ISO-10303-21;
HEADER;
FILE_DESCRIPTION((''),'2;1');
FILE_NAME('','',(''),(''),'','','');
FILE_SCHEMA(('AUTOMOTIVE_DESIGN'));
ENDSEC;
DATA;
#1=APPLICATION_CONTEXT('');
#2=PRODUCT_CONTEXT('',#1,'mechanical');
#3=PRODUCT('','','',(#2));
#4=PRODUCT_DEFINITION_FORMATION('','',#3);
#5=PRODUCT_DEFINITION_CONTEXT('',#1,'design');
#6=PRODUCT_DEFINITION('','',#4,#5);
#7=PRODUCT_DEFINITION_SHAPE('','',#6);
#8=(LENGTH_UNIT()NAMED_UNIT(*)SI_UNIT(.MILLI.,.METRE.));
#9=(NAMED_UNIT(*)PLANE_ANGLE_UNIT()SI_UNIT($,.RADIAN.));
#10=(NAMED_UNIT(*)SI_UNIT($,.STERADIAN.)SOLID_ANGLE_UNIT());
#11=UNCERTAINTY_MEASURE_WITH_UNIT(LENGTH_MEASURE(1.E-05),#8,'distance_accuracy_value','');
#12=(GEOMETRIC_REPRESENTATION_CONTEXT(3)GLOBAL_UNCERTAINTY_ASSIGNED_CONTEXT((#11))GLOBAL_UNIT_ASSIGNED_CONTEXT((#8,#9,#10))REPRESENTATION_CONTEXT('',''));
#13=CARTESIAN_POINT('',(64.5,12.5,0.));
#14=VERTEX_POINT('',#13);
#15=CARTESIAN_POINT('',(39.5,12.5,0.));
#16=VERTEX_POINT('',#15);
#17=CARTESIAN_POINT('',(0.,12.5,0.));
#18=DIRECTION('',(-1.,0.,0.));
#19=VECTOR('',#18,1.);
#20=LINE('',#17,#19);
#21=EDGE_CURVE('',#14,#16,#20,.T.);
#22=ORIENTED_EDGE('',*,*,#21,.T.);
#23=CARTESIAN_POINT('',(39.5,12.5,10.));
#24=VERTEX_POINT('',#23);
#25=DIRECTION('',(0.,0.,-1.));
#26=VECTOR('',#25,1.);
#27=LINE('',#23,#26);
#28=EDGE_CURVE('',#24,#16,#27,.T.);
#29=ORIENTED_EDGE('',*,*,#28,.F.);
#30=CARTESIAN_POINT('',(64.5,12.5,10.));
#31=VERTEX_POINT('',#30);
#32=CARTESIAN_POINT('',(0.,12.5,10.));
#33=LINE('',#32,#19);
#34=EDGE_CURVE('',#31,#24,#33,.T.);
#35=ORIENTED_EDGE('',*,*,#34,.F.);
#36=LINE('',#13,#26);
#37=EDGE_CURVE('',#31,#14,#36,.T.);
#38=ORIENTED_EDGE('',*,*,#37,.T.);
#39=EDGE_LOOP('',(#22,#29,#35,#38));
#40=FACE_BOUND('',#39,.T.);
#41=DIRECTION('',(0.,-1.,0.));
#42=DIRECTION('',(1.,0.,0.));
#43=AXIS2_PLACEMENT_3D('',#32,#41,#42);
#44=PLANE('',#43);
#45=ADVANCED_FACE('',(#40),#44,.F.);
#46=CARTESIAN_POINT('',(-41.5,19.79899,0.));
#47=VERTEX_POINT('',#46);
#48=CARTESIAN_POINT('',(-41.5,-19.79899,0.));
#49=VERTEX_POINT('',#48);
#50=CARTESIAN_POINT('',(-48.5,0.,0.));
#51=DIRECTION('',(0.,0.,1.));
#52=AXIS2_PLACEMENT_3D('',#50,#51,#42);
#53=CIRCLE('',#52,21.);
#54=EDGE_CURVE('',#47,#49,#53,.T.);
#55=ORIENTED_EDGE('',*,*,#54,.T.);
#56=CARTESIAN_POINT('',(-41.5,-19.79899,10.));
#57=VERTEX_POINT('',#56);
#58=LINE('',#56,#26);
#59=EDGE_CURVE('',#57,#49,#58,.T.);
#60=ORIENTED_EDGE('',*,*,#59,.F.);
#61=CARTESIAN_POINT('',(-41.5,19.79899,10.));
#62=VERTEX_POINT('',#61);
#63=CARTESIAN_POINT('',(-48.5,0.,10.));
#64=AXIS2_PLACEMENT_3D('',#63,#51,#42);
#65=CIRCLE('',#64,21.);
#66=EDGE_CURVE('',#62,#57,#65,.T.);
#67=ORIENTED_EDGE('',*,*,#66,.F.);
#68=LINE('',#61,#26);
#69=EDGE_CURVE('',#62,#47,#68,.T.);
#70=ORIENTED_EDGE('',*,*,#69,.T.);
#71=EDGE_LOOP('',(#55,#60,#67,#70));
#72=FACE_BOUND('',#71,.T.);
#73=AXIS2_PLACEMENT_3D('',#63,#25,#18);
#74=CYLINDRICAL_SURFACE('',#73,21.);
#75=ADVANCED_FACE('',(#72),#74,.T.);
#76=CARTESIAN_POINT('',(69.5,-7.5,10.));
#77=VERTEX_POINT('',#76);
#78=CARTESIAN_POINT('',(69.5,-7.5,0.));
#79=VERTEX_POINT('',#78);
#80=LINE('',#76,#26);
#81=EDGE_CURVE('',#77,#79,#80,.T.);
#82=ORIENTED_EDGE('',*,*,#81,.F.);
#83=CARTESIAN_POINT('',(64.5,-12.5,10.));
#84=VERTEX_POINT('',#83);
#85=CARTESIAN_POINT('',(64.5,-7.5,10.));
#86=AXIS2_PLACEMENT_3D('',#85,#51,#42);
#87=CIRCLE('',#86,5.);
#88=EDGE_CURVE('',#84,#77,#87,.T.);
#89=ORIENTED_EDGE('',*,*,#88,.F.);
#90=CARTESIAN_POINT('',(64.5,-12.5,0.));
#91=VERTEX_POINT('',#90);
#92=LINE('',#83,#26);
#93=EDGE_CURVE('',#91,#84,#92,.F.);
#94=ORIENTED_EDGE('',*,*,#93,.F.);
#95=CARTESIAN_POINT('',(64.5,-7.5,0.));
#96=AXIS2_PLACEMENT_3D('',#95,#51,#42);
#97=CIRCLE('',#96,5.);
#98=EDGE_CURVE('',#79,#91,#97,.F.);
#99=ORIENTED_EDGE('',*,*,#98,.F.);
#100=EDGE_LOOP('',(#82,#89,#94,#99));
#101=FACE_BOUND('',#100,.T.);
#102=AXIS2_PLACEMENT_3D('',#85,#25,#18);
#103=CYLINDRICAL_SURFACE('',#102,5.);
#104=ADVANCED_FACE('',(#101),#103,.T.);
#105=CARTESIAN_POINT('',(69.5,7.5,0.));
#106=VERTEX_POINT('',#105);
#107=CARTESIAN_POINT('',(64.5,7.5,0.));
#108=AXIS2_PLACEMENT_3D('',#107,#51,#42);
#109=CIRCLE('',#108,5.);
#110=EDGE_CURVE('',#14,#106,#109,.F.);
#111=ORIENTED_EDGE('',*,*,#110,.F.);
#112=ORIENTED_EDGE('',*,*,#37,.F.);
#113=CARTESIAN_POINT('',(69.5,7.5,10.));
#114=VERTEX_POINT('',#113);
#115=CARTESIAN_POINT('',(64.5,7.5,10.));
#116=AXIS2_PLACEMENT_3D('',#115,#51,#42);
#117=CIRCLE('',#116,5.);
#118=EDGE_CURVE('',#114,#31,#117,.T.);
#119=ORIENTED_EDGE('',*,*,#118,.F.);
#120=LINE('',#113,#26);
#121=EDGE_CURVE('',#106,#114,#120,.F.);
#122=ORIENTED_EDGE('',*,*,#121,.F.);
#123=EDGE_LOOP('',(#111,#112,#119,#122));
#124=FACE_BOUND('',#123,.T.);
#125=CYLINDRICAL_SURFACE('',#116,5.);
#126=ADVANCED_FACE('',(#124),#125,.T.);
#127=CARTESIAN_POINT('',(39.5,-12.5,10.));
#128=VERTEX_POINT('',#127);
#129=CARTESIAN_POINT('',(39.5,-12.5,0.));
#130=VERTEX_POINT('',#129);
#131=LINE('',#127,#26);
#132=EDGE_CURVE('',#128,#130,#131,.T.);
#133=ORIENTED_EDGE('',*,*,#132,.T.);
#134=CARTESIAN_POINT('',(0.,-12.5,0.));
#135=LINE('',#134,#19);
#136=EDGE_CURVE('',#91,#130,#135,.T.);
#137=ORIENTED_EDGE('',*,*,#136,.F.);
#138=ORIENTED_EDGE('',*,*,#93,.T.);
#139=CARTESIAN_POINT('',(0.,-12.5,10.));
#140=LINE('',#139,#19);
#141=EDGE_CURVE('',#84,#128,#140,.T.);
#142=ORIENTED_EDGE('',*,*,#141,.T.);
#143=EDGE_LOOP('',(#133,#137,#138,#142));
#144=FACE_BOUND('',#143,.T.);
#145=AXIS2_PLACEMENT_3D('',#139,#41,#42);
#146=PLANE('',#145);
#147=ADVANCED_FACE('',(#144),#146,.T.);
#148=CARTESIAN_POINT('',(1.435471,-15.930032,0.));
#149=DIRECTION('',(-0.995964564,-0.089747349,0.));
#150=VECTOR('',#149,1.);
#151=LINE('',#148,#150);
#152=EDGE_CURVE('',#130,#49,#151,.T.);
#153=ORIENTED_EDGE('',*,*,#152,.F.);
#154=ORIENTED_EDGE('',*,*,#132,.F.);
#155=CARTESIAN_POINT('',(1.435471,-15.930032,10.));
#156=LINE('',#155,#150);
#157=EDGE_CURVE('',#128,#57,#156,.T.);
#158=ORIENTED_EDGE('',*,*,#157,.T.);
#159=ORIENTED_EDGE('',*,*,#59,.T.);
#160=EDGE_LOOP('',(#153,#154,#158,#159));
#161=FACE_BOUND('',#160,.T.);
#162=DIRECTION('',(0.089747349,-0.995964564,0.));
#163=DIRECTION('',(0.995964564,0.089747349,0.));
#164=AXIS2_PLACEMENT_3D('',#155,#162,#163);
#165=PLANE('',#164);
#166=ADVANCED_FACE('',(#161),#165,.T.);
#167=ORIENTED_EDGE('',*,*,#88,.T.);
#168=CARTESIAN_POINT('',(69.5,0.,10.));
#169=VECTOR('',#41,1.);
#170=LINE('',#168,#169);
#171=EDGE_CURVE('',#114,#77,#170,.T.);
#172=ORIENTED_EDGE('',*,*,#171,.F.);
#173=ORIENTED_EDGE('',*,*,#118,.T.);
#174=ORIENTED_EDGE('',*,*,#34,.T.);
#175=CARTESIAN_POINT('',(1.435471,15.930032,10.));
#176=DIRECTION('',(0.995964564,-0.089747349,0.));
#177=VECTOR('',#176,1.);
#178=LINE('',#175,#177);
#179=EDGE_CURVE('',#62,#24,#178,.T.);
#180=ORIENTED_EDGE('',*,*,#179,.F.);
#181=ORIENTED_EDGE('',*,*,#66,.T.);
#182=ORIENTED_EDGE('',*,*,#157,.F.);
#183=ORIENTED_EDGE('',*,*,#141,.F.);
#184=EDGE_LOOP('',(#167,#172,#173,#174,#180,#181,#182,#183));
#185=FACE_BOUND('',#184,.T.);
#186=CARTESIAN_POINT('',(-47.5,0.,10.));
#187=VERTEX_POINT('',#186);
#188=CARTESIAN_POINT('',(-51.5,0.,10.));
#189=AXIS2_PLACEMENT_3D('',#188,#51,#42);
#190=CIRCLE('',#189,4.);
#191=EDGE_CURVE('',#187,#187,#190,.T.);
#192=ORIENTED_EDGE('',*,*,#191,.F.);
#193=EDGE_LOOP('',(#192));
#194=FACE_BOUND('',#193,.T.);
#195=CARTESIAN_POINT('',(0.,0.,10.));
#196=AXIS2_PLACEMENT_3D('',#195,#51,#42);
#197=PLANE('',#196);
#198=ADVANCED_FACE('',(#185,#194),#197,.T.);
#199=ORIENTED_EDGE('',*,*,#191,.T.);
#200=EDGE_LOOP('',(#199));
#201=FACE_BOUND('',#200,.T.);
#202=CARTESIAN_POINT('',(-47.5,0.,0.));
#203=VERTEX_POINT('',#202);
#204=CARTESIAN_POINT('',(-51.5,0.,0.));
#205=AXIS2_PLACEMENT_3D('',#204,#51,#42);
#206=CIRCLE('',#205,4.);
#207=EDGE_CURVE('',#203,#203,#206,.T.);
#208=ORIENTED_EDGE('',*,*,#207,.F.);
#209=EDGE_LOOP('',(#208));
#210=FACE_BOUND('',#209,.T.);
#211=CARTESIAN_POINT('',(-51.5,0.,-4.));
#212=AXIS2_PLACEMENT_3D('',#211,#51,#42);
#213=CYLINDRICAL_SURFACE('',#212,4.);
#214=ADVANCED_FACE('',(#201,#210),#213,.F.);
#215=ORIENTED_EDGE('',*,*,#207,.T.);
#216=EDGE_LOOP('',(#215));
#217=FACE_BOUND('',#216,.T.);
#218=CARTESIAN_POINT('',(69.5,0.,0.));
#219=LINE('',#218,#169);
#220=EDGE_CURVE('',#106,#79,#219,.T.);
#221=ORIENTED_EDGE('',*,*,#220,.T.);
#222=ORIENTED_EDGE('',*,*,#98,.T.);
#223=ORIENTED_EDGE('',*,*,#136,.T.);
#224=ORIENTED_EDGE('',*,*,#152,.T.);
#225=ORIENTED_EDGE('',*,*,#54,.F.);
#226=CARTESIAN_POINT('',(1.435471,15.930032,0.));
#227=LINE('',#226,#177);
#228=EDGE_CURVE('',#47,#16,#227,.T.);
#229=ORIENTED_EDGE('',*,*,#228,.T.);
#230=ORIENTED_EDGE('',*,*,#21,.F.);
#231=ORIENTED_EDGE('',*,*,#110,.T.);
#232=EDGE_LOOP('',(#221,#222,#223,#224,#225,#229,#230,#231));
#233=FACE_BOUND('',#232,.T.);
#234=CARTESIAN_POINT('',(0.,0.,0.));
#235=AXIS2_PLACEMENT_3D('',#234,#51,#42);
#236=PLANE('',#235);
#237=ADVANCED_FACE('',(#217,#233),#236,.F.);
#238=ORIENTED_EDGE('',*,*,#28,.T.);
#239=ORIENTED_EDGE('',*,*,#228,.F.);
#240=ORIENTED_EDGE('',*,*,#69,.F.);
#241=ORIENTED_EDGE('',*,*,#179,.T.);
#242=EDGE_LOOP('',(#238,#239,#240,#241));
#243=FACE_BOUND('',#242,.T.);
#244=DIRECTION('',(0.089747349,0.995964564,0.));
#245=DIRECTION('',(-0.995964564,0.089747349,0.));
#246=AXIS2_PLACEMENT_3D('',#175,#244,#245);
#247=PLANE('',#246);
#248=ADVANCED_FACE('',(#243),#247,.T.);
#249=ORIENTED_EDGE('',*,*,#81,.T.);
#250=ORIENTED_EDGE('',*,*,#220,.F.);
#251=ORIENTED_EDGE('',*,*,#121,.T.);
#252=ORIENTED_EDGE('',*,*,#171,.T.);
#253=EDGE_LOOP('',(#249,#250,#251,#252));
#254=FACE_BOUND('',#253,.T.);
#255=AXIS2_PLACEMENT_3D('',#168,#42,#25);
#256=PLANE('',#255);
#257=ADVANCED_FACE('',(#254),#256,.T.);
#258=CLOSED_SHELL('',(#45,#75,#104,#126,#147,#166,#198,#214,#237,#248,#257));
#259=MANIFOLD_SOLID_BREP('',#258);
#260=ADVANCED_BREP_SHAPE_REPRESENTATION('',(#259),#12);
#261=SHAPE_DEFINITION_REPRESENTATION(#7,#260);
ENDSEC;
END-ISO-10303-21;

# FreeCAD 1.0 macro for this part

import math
import FreeCAD as App
import Part
import Sketcher


def edges_at(feature, points):
    """Names of the edges that pass closest to the given points."""
    edges = feature.Shape.Edges
    near = lambda p: min(range(len(edges)), key=lambda i: edges[i].distToShape(Part.Vertex(*p))[0])
    return sorted({f"Edge{near(p) + 1}" for p in points})

doc = App.newDocument("Part")
body = doc.addObject("PartDesign::Body", "Body")

# Sketch on XY plane
sketch1 = doc.addObject("Sketcher::SketchObject", "Sketch")
body.addObject(sketch1)
sketch1.AttachmentSupport = (doc.XY_Plane, [""])
sketch1.MapMode = "FlatFace"
sketch1.addGeometry(Part.ArcOfCircle(Part.Circle(App.Vector(-48, 0, 0), App.Vector(0, 0, 1), 21), math.radians(70.53), math.radians(90)), False)
sketch1.addGeometry(Part.ArcOfCircle(Part.Circle(App.Vector(-48, 0, 0), App.Vector(0, 0, 1), 21), math.radians(90), math.radians(180)), False)
sketch1.addGeometry(Part.ArcOfCircle(Part.Circle(App.Vector(-48, 0, 0), App.Vector(0, 0, 1), 21), math.radians(180), math.radians(270)), False)
sketch1.addGeometry(Part.ArcOfCircle(Part.Circle(App.Vector(-48, 0, 0), App.Vector(0, 0, 1), 21), math.radians(-90), math.radians(-70.53)), False)
sketch1.addGeometry(Part.LineSegment(App.Vector(-42, -20, 0), App.Vector(40, -12, 0)), False)
sketch1.addGeometry(Part.LineSegment(App.Vector(40, -12, 0), App.Vector(70, -12, 0)), False)
sketch1.addGeometry(Part.LineSegment(App.Vector(70, -12, 0), App.Vector(70, 12, 0)), False)
sketch1.addGeometry(Part.LineSegment(App.Vector(70, 12, 0), App.Vector(40, 12, 0)), False)
sketch1.addGeometry(Part.LineSegment(App.Vector(40, 12, 0), App.Vector(-42, 20, 0)), False)
sketch1.addConstraint(Sketcher.Constraint("Tangent", 0, 2, 1, 1))
sketch1.addConstraint(Sketcher.Constraint("Tangent", 1, 2, 2, 1))
sketch1.addConstraint(Sketcher.Constraint("Tangent", 2, 2, 3, 1))
sketch1.addConstraint(Sketcher.Constraint("Coincident", 3, 2, 4, 1))
sketch1.addConstraint(Sketcher.Constraint("Coincident", 4, 2, 5, 1))
sketch1.addConstraint(Sketcher.Constraint("Coincident", 5, 2, 6, 1))
sketch1.addConstraint(Sketcher.Constraint("Coincident", 6, 2, 7, 1))
sketch1.addConstraint(Sketcher.Constraint("Coincident", 7, 2, 8, 1))
sketch1.addConstraint(Sketcher.Constraint("Coincident", 8, 2, 0, 1))
sketch1.addConstraint(Sketcher.Constraint("Horizontal", 5))
sketch1.addConstraint(Sketcher.Constraint("Vertical", 6))
sketch1.addConstraint(Sketcher.Constraint("Horizontal", 7))
sketch1.addConstraint(Sketcher.Constraint("Coincident", 2, 3, 0, 3))
sketch1.addConstraint(Sketcher.Constraint("Equal", 2, 3))
sketch1.addConstraint(Sketcher.Constraint("Symmetric", 0, 2, 2, 2, -1))
sketch1.addConstraint(Sketcher.Constraint("Symmetric", 4, 2, 7, 2, -1))
sketch1.addConstraint(Sketcher.Constraint("PointOnObject", 1, 2, -1))
sketch1.addConstraint(Sketcher.Constraint("Vertical", 3, 3, 0, 2))
sketch1.addConstraint(Sketcher.Constraint("Vertical", 3, 2, 8, 2))
sketch1.addConstraint(Sketcher.Constraint("Radius", 0, 21.0))
sketch1.addConstraint(Sketcher.Constraint("DistanceX", 5, 1, 5, 2, 30.0))
sketch1.addConstraint(Sketcher.Constraint("DistanceY", 6, 1, 6, 2, 25.0))
sketch1.addConstraint(Sketcher.Constraint("DistanceX", 2, 2, 3, 2, 7.0))
sketch1.addConstraint(Sketcher.Constraint("DistanceX", 3, 2, 4, 2, 81.0))
sketch1.addConstraint(Sketcher.Constraint("DistanceX", 0, 3, -1, 1, 48.5))
pad1 = doc.addObject("PartDesign::Pad", "Pad")
body.addObject(pad1)
pad1.Profile = sketch1
pad1.Length = 10
doc.recompute()

fillet = doc.addObject("PartDesign::Fillet", "Fillet")
body.addObject(fillet)
fillet.Base = (pad1, edges_at(pad1, [(69.5, 12.5, 5), (69.5, -12.5, 5)]))
fillet.Radius = 5

# Sketch on XY plane
sketch2 = doc.addObject("Sketcher::SketchObject", "Sketch001")
body.addObject(sketch2)
sketch2.AttachmentSupport = (doc.XY_Plane, [""])
sketch2.MapMode = "FlatFace"
sketch2.AttachmentOffset = App.Placement(App.Vector(0, 0, 10), App.Rotation())
sketch2.addGeometry(Part.Circle(App.Vector(-51.5, 0, 0), App.Vector(0, 0, 1), 4), False)
sketch2.addConstraint(Sketcher.Constraint("PointOnObject", 0, 3, -1))
sketch2.addConstraint(Sketcher.Constraint("Diameter", 0, 8.0))
sketch2.addConstraint(Sketcher.Constraint("DistanceX", 0, 3, -1, 1, 51.5))
pocket1 = doc.addObject("PartDesign::Pocket", "Pocket")
body.addObject(pocket1)
pocket1.Profile = sketch2
pocket1.Length = 14

doc.recompute()
